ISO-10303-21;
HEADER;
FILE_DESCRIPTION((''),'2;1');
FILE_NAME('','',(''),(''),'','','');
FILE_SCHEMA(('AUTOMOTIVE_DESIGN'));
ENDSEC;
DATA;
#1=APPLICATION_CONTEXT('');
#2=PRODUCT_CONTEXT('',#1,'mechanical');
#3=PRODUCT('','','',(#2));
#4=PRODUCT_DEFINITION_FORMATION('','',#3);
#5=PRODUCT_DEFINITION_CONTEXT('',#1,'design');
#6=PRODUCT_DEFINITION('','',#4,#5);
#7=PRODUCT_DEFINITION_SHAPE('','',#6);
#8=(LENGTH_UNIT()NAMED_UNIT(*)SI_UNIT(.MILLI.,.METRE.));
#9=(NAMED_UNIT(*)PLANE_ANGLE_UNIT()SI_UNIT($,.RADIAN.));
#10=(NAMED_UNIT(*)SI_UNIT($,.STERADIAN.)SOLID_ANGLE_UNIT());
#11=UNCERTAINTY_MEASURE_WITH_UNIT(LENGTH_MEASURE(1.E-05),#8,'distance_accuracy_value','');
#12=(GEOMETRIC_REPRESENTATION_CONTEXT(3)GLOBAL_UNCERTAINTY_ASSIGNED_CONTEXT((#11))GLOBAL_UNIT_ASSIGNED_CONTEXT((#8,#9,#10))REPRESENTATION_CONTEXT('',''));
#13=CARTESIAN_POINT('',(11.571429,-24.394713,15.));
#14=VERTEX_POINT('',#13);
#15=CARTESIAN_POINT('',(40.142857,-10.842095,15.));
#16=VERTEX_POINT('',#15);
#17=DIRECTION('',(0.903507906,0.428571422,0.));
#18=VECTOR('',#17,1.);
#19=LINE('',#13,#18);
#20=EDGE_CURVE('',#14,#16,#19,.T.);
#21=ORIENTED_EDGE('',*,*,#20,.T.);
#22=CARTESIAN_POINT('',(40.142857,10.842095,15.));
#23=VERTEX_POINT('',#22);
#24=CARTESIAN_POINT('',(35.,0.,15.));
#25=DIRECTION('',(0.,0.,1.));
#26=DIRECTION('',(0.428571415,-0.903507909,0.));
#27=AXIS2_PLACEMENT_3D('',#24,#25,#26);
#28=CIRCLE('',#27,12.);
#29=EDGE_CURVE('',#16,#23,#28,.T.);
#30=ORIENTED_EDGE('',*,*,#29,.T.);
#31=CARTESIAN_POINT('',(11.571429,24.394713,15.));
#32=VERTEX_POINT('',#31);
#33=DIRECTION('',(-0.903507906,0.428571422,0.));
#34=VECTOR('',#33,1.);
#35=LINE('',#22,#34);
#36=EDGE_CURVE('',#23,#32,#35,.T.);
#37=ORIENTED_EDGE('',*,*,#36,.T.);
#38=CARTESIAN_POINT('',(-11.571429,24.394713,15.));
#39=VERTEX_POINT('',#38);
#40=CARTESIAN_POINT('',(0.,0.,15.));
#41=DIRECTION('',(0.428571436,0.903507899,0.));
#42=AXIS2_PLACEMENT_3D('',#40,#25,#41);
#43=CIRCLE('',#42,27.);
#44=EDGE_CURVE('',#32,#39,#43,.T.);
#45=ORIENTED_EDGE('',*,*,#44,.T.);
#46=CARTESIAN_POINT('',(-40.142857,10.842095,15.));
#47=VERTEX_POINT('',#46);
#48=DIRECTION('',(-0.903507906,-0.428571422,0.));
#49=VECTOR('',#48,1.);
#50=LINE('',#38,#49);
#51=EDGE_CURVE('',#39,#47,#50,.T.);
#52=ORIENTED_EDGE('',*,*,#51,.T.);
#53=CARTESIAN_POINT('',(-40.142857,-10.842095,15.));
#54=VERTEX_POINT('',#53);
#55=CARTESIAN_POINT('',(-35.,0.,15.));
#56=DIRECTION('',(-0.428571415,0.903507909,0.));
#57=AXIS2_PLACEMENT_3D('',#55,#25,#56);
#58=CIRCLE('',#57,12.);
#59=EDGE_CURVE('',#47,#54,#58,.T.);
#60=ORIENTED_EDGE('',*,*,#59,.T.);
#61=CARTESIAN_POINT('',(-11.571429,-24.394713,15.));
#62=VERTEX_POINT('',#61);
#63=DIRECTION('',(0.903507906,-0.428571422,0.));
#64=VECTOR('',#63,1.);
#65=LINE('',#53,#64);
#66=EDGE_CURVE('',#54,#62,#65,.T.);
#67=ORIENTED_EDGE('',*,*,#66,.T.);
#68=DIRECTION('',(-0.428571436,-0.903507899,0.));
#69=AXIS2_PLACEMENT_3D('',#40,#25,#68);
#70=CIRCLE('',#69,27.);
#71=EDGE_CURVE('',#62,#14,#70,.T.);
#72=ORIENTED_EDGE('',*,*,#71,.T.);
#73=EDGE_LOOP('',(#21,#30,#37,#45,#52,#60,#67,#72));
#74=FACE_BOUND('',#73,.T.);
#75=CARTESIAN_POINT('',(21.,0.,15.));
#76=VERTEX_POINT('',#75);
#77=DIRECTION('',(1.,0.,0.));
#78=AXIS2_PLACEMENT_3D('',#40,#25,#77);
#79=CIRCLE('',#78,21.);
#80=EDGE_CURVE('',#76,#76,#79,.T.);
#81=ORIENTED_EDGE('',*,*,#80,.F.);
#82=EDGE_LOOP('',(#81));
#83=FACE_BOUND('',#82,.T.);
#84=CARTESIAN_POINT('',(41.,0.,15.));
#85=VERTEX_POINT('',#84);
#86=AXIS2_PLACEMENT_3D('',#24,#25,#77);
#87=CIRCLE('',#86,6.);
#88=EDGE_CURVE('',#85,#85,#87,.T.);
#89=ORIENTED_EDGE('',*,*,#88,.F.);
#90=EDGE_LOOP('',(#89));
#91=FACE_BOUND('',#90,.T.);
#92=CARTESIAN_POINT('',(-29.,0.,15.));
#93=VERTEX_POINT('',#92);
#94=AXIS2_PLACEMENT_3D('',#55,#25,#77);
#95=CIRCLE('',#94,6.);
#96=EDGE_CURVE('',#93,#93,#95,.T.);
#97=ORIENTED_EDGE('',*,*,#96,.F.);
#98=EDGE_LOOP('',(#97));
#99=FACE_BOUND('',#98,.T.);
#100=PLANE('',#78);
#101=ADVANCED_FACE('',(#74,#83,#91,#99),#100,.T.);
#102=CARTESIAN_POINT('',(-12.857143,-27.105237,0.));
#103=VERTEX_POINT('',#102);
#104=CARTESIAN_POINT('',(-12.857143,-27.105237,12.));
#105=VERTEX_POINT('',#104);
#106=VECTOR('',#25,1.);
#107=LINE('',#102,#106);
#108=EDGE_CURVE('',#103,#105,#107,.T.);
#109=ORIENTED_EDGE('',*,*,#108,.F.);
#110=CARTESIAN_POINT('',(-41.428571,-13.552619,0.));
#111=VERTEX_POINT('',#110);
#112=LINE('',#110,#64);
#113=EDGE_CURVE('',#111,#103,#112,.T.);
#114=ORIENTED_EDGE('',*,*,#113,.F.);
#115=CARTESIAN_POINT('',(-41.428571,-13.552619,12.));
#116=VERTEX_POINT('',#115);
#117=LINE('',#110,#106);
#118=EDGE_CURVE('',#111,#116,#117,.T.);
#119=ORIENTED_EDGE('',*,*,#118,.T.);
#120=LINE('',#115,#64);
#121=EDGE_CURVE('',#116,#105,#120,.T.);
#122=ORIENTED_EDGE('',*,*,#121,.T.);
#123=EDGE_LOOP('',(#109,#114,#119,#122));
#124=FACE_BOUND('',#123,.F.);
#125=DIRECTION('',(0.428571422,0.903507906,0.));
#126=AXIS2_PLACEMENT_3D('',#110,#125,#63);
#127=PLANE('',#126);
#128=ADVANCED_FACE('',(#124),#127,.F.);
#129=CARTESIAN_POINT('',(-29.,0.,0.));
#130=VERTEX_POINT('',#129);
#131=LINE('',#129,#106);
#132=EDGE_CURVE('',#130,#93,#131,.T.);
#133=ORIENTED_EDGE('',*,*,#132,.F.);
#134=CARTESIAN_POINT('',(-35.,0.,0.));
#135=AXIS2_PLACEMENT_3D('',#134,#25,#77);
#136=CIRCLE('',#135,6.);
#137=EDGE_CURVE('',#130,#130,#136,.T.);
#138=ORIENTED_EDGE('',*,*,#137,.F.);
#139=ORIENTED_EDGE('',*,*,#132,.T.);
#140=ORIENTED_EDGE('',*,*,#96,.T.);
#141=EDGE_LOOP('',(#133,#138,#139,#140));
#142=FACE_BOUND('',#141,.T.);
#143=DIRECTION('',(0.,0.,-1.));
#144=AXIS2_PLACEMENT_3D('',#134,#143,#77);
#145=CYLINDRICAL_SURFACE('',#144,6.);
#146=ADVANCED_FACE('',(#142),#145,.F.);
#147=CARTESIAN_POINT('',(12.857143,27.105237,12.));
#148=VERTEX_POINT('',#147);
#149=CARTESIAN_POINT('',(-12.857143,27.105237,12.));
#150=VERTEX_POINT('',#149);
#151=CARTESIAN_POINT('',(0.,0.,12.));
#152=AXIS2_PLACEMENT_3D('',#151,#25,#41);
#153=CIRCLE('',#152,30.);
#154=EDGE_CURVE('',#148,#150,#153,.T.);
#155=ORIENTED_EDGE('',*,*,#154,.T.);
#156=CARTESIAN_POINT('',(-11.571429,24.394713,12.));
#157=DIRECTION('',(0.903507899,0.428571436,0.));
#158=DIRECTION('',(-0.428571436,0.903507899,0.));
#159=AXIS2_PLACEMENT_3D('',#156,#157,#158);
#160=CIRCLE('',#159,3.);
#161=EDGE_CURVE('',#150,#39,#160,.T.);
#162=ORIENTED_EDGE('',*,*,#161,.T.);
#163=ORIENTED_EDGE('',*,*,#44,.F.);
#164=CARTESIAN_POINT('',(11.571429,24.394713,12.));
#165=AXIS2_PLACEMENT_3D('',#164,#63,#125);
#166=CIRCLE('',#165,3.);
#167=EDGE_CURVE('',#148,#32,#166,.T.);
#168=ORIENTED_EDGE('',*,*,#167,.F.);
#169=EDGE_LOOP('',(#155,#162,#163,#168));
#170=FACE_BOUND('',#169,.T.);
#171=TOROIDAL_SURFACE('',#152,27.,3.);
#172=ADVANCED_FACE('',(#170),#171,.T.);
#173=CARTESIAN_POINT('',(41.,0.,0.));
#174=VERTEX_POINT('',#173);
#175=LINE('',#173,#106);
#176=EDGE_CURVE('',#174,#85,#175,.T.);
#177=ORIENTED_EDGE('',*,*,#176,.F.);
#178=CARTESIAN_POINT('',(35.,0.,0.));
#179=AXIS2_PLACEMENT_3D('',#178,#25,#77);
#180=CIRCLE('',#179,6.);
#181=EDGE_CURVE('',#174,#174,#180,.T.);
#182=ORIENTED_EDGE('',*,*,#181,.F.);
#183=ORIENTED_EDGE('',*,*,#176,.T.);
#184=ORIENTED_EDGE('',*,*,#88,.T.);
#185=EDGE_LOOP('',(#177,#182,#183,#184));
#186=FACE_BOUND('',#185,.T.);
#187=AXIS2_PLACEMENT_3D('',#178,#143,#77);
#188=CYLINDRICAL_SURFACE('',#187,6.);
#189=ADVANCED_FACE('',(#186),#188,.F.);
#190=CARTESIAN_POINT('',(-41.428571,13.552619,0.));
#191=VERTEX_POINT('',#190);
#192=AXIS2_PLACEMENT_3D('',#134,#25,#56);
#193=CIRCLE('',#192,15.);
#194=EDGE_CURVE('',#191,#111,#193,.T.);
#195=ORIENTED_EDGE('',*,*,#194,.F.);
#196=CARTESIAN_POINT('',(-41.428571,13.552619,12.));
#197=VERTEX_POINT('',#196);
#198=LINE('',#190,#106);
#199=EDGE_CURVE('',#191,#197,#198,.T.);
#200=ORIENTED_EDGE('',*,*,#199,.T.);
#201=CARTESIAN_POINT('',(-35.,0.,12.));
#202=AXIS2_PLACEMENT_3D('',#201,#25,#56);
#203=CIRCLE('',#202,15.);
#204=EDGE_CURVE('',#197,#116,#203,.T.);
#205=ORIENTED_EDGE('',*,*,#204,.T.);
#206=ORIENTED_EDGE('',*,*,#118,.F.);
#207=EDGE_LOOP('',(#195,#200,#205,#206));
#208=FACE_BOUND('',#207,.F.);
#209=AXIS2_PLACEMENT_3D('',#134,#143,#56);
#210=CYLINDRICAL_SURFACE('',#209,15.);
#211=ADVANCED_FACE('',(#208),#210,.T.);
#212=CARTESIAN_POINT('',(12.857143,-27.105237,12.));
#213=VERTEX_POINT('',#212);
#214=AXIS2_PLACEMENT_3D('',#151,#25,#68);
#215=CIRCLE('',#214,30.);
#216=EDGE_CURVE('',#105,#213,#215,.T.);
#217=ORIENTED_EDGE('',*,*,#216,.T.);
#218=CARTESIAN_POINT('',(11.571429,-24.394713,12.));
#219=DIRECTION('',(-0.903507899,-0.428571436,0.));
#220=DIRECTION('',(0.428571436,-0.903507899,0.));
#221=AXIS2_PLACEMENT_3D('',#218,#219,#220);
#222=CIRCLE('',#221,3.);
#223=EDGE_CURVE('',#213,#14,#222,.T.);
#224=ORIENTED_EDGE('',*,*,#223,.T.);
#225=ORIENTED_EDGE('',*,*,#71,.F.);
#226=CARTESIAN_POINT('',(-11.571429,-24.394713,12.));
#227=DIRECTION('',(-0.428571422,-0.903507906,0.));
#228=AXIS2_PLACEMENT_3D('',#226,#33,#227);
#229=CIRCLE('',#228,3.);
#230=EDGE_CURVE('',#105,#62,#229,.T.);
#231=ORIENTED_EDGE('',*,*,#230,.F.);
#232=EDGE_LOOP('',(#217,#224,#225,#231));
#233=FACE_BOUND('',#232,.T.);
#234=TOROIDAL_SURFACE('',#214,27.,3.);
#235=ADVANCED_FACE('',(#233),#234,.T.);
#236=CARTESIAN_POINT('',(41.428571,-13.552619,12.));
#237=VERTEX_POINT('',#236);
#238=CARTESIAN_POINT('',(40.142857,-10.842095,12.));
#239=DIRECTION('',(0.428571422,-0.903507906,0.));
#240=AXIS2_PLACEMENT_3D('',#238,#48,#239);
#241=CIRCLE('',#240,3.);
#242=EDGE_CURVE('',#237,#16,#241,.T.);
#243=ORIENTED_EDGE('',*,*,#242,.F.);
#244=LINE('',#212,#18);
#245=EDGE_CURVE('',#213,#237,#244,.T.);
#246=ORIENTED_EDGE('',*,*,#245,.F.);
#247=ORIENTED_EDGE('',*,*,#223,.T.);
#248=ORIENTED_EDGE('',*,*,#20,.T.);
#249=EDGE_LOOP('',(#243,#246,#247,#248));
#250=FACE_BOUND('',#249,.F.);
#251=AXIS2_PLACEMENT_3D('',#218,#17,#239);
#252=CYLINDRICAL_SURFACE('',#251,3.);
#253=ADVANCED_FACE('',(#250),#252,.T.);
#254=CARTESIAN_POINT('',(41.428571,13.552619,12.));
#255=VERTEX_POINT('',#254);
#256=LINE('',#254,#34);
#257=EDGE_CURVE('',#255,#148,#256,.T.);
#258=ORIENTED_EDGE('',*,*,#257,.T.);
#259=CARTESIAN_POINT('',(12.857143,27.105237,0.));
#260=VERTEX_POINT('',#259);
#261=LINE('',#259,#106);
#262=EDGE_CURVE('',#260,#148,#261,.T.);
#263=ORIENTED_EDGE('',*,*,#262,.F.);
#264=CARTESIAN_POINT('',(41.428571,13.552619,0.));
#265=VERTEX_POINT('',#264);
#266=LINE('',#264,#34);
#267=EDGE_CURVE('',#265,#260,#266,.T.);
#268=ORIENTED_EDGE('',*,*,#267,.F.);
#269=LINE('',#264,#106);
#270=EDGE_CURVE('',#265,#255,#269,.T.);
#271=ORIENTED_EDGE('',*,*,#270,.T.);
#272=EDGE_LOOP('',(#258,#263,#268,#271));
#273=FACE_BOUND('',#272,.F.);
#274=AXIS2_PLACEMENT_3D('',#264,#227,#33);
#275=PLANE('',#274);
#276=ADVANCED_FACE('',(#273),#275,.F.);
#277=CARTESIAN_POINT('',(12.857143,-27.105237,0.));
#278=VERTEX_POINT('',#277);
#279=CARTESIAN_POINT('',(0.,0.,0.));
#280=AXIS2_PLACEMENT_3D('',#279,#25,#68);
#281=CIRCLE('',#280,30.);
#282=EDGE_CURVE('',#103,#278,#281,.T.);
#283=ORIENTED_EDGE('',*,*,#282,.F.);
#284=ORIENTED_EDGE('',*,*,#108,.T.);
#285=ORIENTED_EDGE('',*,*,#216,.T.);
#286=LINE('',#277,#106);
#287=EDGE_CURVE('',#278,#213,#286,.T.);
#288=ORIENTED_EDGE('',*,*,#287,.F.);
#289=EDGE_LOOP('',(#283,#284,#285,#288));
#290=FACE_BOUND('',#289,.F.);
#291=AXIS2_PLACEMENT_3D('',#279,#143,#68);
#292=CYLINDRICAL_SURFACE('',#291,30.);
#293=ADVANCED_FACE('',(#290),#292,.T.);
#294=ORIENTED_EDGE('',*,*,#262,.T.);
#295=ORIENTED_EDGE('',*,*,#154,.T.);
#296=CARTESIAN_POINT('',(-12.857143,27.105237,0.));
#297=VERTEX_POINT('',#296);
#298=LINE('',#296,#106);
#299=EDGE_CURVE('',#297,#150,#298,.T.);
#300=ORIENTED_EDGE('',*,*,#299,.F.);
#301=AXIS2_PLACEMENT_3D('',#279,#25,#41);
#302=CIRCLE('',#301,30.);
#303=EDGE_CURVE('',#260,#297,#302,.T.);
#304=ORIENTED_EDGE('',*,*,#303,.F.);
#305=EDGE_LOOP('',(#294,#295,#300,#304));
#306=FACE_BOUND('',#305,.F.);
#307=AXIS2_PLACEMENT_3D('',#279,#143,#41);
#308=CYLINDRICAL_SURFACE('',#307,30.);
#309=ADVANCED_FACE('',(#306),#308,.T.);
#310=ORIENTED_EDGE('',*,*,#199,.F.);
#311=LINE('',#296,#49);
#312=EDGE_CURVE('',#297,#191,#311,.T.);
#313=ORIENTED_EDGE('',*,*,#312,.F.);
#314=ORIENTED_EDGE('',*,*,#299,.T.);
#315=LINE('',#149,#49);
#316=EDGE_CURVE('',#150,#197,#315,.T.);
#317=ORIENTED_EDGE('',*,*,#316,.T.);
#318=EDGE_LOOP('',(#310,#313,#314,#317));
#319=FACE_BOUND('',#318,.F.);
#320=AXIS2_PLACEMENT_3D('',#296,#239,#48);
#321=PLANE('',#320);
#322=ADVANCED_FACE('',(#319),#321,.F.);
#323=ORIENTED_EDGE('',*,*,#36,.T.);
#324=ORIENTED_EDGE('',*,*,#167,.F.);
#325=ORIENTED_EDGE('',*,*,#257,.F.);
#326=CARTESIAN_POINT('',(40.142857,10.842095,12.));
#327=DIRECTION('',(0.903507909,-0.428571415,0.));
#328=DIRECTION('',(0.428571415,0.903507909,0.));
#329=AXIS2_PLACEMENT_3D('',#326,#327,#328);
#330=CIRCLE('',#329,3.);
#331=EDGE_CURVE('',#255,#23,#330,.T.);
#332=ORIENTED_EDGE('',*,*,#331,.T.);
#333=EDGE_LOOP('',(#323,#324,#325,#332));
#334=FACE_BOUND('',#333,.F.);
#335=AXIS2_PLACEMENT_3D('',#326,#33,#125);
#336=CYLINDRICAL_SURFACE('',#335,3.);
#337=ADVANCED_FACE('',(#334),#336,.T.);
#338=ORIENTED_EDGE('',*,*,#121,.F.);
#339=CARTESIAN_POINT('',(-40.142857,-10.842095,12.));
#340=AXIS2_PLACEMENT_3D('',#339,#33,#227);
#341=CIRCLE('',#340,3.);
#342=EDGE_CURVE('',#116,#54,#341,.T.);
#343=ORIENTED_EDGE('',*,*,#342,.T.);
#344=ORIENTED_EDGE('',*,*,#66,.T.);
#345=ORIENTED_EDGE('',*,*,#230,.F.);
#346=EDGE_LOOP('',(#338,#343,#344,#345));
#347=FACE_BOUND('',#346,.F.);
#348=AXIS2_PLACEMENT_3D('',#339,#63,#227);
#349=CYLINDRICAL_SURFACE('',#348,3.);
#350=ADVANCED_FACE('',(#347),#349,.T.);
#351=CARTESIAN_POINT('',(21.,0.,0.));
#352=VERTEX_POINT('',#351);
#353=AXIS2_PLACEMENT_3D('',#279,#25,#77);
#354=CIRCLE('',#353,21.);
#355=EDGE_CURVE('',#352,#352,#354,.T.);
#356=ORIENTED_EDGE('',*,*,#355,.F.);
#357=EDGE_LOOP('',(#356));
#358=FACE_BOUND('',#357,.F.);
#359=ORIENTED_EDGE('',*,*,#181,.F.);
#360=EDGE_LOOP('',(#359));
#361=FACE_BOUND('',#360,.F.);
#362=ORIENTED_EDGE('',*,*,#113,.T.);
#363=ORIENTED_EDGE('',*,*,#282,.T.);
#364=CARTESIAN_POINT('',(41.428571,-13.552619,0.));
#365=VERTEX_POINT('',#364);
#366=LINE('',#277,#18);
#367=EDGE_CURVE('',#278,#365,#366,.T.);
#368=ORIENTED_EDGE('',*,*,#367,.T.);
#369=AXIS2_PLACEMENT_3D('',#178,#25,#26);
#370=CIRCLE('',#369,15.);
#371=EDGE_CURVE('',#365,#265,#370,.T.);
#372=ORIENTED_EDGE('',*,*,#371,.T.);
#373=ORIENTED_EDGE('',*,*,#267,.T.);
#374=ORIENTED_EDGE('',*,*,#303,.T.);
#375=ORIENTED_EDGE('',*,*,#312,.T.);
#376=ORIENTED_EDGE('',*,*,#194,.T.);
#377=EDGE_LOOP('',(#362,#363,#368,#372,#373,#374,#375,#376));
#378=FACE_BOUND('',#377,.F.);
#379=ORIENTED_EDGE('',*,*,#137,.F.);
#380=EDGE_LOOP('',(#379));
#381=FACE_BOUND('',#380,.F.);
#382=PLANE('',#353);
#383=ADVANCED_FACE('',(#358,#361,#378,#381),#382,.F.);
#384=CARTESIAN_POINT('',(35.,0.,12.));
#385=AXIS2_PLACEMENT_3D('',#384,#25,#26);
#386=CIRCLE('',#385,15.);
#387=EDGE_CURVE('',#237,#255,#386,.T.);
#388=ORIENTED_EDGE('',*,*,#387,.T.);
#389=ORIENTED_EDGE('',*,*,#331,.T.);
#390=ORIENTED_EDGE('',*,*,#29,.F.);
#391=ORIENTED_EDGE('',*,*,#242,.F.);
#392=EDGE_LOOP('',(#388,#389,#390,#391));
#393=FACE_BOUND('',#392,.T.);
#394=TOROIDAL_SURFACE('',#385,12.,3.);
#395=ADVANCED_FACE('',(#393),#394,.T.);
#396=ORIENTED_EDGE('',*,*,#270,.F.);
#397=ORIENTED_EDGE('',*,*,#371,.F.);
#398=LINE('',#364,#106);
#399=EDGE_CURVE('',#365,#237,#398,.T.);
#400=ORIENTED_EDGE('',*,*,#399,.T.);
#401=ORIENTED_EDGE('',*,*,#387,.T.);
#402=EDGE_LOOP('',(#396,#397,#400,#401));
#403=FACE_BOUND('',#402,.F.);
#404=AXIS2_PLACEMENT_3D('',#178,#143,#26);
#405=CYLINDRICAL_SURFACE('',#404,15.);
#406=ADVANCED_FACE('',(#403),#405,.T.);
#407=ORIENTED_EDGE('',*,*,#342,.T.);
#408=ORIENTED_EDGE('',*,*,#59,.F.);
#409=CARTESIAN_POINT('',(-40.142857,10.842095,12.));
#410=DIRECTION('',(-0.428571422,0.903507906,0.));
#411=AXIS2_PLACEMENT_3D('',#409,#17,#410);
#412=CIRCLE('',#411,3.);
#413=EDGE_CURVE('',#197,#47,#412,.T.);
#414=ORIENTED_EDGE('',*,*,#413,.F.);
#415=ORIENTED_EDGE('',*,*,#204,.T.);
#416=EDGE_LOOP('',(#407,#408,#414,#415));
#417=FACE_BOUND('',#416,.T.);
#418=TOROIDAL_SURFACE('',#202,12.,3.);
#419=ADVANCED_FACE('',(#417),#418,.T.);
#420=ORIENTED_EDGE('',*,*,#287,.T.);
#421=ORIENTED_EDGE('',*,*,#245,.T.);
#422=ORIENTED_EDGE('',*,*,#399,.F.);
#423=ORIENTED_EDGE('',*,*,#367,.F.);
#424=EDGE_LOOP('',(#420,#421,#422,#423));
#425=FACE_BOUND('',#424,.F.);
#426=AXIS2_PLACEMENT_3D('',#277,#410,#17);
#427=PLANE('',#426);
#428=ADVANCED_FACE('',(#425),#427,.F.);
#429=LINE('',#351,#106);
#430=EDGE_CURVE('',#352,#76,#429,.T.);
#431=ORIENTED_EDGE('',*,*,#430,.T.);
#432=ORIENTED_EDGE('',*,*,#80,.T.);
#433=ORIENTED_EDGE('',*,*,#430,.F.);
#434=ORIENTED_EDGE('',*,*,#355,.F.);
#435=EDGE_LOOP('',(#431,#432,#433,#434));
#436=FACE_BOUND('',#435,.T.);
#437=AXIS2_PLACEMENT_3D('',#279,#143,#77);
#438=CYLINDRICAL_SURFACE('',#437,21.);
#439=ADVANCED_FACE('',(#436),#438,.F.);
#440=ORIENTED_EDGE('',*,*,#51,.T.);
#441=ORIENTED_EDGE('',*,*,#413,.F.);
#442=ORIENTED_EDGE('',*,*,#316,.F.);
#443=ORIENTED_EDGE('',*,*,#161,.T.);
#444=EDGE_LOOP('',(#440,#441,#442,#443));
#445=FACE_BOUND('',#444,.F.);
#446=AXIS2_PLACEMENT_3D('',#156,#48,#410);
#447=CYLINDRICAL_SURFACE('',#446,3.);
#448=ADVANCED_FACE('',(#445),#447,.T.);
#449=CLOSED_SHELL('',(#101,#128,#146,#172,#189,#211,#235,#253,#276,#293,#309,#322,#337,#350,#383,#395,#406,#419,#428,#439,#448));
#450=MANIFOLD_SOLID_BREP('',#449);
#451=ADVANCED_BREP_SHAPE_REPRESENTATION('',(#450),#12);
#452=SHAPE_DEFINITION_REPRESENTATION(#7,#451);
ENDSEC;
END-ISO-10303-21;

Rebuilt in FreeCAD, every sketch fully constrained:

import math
import FreeCAD as App
import Part
import Sketcher


def edges_at(feature, points):
    """Names of the edges that pass closest to the given points."""
    edges = feature.Shape.Edges
    near = lambda p: min(range(len(edges)), key=lambda i: edges[i].distToShape(Part.Vertex(*p))[0])
    return sorted({f"Edge{near(p) + 1}" for p in points})

doc = App.newDocument("Part")
body = doc.addObject("PartDesign::Body", "Body")

sketch1 = doc.addObject("Sketcher::SketchObject", "Sketch")
body.addObject(sketch1)
sketch1.AttachmentSupport = (doc.XY_Plane, [""])
sketch1.MapMode = "FlatFace"
sketch1.addGeometry([
    Part.LineSegment(App.Vector(13, -27, 0), App.Vector(41, -14, 0)),
    Part.ArcOfCircle(Part.Circle(App.Vector(35, 0, 0), App.Vector(0, 0, 1), 15), math.radians(-65), math.radians(65)),
    Part.LineSegment(App.Vector(41, 14, 0), App.Vector(13, 27, 0)),
    Part.ArcOfCircle(Part.Circle(App.Vector(0, 0, 0), App.Vector(0, 0, 1), 30), math.radians(65), math.radians(115)),
    Part.LineSegment(App.Vector(-13, 27, 0), App.Vector(-41, 14, 0)),
    Part.ArcOfCircle(Part.Circle(App.Vector(-35, 0, 0), App.Vector(0, 0, 1), 15), math.radians(115), math.radians(245)),
    Part.LineSegment(App.Vector(-41, -14, 0), App.Vector(-13, -27, 0)),
    Part.ArcOfCircle(Part.Circle(App.Vector(0, 0, 0), App.Vector(0, 0, 1), 30), math.radians(-115), math.radians(-65)),
    Part.Circle(App.Vector(-35, 0, 0), App.Vector(0, 0, 1), 6),
    Part.Circle(App.Vector(0, 0, 0), App.Vector(0, 0, 1), 21),
    Part.Circle(App.Vector(35, 0, 0), App.Vector(0, 0, 1), 6),
], False)
sketch1.addConstraint([
    Sketcher.Constraint("Tangent", 0, 2, 1, 1),
    Sketcher.Constraint("Tangent", 1, 2, 2, 1),
    Sketcher.Constraint("Tangent", 2, 2, 3, 1),
    Sketcher.Constraint("Tangent", 3, 2, 4, 1),
    Sketcher.Constraint("Tangent", 4, 2, 5, 1),
    Sketcher.Constraint("Tangent", 5, 2, 6, 1),
    Sketcher.Constraint("Tangent", 6, 2, 7, 1),
    Sketcher.Constraint("Tangent", 7, 2, 0, 1),
    Sketcher.Constraint("Coincident", 3, 3, -1, 1),
    Sketcher.Constraint("Coincident", 7, 3, -1, 1),
    Sketcher.Constraint("Coincident", 9, 3, -1, 1),
    Sketcher.Constraint("Coincident", 8, 3, 5, 3),
    Sketcher.Constraint("Coincident", 10, 3, 1, 3),
    Sketcher.Constraint("Equal", 1, 5),
    Sketcher.Constraint("Equal", 3, 7),
    Sketcher.Constraint("Equal", 8, 10),
    Sketcher.Constraint("Symmetric", 1, 3, 5, 3, -1, 1),
    Sketcher.Constraint("PointOnObject", 1, 3, -1),
    Sketcher.Constraint("Diameter", 8, 12.0),
    Sketcher.Constraint("Diameter", 9, 42.0),
    Sketcher.Constraint("Radius", 1, 15.0),
    Sketcher.Constraint("Radius", 3, 30.0),
    Sketcher.Constraint("DistanceX", -1, 1, 1, 3, 35.0),
])
pad1 = doc.addObject("PartDesign::Pad", "Pad")
body.addObject(pad1)
pad1.Profile = sketch1
pad1.Length = 15
doc.recompute()

fillet = doc.addObject("PartDesign::Fillet", "Fillet")
body.addObject(fillet)
fillet.Base = (pad1, edges_at(pad1, [
    (-27.143, -20.329, 15),
    (-50, 0, 15),
    (-27.143, 20.329, 15),
    (0, 30, 15),
    (27.143, 20.329, 15),
    (50, 0, 15),
    (27.143, -20.329, 15),
    (0, -30, 15),
]))
fillet.Radius = 3

doc.recompute()
